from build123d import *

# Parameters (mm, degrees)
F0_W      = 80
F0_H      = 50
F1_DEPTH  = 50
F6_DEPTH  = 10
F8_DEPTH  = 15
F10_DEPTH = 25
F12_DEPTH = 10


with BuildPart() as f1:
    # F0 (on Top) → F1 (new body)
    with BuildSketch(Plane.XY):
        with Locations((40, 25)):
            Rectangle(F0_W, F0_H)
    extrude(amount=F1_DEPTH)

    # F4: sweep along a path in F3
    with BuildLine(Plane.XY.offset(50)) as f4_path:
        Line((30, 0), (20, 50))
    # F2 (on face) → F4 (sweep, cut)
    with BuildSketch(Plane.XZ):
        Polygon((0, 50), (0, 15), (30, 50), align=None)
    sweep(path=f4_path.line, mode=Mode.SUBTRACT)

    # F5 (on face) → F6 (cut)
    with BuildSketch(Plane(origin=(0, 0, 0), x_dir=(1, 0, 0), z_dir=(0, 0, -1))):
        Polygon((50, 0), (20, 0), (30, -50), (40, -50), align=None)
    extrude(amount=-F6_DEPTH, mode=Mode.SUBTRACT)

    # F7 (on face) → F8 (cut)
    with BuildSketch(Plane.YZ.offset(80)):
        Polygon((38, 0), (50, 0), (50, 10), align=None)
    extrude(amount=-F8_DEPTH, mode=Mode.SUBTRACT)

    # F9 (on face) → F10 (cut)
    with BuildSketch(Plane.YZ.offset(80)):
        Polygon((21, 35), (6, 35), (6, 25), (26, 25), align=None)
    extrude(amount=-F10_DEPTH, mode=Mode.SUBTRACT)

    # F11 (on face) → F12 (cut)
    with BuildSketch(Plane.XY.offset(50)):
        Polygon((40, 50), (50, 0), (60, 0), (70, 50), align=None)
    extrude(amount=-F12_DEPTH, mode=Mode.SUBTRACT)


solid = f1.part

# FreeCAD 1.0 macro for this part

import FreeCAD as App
import Part
import Sketcher


def add_polygon(sketch, points):
    """Adds a closed chain of lines whose ends are joined by coincident constraints."""
    first, n = sketch.GeometryCount, len(points)
    for a, b in zip(points, points[1:] + points[:1]):
        sketch.addGeometry(Part.LineSegment(App.Vector(*a, 0), App.Vector(*b, 0)), False)
    for i in range(n):
        sketch.addConstraint(Sketcher.Constraint("Coincident", first + i, 2, first + (i + 1) % n, 1))

doc = App.newDocument("Part")
body = doc.addObject("PartDesign::Body", "Body")

# Sketch on XY plane
sketch1 = doc.addObject("Sketcher::SketchObject", "Sketch")
body.addObject(sketch1)
sketch1.AttachmentSupport = (doc.XY_Plane, [""])
sketch1.MapMode = "FlatFace"
add_polygon(sketch1, [(0, 50), (0, 0), (80, 0), (80, 50)])  # lines 0-3
sketch1.addConstraint([
    Sketcher.Constraint("Vertical", 0),
    Sketcher.Constraint("Horizontal", 1),
    Sketcher.Constraint("Vertical", 2),
    Sketcher.Constraint("Horizontal", 3),
    Sketcher.Constraint("Coincident", 0, 2, -1, 1),
    Sketcher.Constraint("DistanceX", 1, 1, 1, 2, 80.0),
    Sketcher.Constraint("DistanceY", 0, 2, 0, 1, 50.0),
])
pad1 = doc.addObject("PartDesign::Pad", "Pad")
body.addObject(pad1)
pad1.Profile = sketch1
pad1.Length = 50

# Sketch on XZ plane
sketch2 = doc.addObject("Sketcher::SketchObject", "Sketch001")
body.addObject(sketch2)
sketch2.AttachmentSupport = (doc.XZ_Plane, [""])
sketch2.MapMode = "FlatFace"
add_polygon(sketch2, [(0, 50), (0, 15), (30, 50)])  # lines 0-2
sketch2.addConstraint([
    Sketcher.Constraint("Vertical", 0),
    Sketcher.Constraint("Horizontal", 2),
    Sketcher.Constraint("PointOnObject", 0, 2, -2),
    Sketcher.Constraint("DistanceX", 2, 2, 2, 1, 30.0),
    Sketcher.Constraint("DistanceY", 0, 2, 0, 1, 35.0),
    Sketcher.Constraint("DistanceY", -1, 1, 0, 2, 15.0),
])

# Sketch on an angled plane
sketch3 = doc.addObject("Sketcher::SketchObject", "Sketch002")
body.addObject(sketch3)
sketch3.Placement = App.Placement(App.Vector(28.846154, 5.769231, 0), App.Rotation(App.Vector(-0.196116135, 0.980580676, 0), App.Vector(0, 0, 1.000000001), App.Vector(0.980580676, 0.196116135, 0), "ZXY"))
sketch3.addGeometry(Part.LineSegment(App.Vector(-6, 50, 0), App.Vector(45, 50, 0)), False)
sketch3.addConstraint([
    Sketcher.Constraint("Horizontal", 0),
    Sketcher.Constraint("DistanceY", -1, 1, 0, 1, 50.0),
    Sketcher.Constraint("DistanceX", 0, 1, 0, 2, 50.990195),
    Sketcher.Constraint("DistanceX", -1, 1, 0, 2, 45.106711),
])
doc.recompute()

subtractivepipe = doc.addObject("PartDesign::SubtractivePipe", "SubtractivePipe")
body.addObject(subtractivepipe)
subtractivepipe.Profile = sketch2
subtractivepipe.Spine = (sketch3, ["Edge1"])

# Sketch on XY plane
sketch4 = doc.addObject("Sketcher::SketchObject", "Sketch003")
body.addObject(sketch4)
sketch4.AttachmentSupport = (doc.XY_Plane, [""])
sketch4.MapMode = "FlatFace"
add_polygon(sketch4, [(50, 0), (20, 0), (30, 50), (40, 50)])  # lines 0-3
sketch4.addConstraint([
    Sketcher.Constraint("Horizontal", 0),
    Sketcher.Constraint("Horizontal", 2),
    Sketcher.Constraint("PointOnObject", 0, 2, -1),
    Sketcher.Constraint("Equal", 1, 3),
    Sketcher.Constraint("DistanceX", 0, 2, 0, 1, 30.0),
    Sketcher.Constraint("DistanceX", 2, 1, 2, 2, 10.0),
    Sketcher.Constraint("DistanceX", -1, 1, 0, 2, 20.0),
    Sketcher.Constraint("DistanceY", -1, 1, 1, 2, 50.0),
])
pocket1 = doc.addObject("PartDesign::Pocket", "Pocket")
body.addObject(pocket1)
pocket1.Profile = sketch4
pocket1.Length = 10
pocket1.Reversed = True

# Sketch on YZ plane
sketch5 = doc.addObject("Sketcher::SketchObject", "Sketch004")
body.addObject(sketch5)
sketch5.AttachmentSupport = (doc.YZ_Plane, [""])
sketch5.MapMode = "FlatFace"
sketch5.AttachmentOffset = App.Placement(App.Vector(0, 0, 80), App.Rotation())
add_polygon(sketch5, [(38, 0), (50, 0), (50, 10)])  # lines 0-2
sketch5.addConstraint([
    Sketcher.Constraint("Horizontal", 0),
    Sketcher.Constraint("Vertical", 1),
    Sketcher.Constraint("PointOnObject", 0, 2, -1),
    Sketcher.Constraint("DistanceX", 0, 1, 0, 2, 12.0),
    Sketcher.Constraint("DistanceY", 1, 1, 1, 2, 10.0),
    Sketcher.Constraint("DistanceX", -1, 1, 0, 2, 50.0),
])
pocket2 = doc.addObject("PartDesign::Pocket", "Pocket001")
body.addObject(pocket2)
pocket2.Profile = sketch5
pocket2.Length = 15

# Sketch on YZ plane
sketch6 = doc.addObject("Sketcher::SketchObject", "Sketch005")
body.addObject(sketch6)
sketch6.AttachmentSupport = (doc.YZ_Plane, [""])
sketch6.MapMode = "FlatFace"
sketch6.AttachmentOffset = App.Placement(App.Vector(0, 0, 80), App.Rotation())
add_polygon(sketch6, [(21, 35), (6, 35), (6, 25), (26, 25)])  # lines 0-3
sketch6.addConstraint([
    Sketcher.Constraint("Horizontal", 0),
    Sketcher.Constraint("Vertical", 1),
    Sketcher.Constraint("Horizontal", 2),
    Sketcher.Constraint("DistanceX", 0, 2, 0, 1, 15.0),
    Sketcher.Constraint("DistanceX", 2, 1, 2, 2, 20.0),
    Sketcher.Constraint("DistanceY", 1, 2, 1, 1, 10.0),
    Sketcher.Constraint("DistanceX", -1, 1, 0, 2, 6.0),
    Sketcher.Constraint("DistanceY", -1, 1, 0, 2, 35.0),
])
pocket3 = doc.addObject("PartDesign::Pocket", "Pocket002")
body.addObject(pocket3)
pocket3.Profile = sketch6
pocket3.Length = 25

# Sketch on XY plane
sketch7 = doc.addObject("Sketcher::SketchObject", "Sketch006")
body.addObject(sketch7)
sketch7.AttachmentSupport = (doc.XY_Plane, [""])
sketch7.MapMode = "FlatFace"
sketch7.AttachmentOffset = App.Placement(App.Vector(0, 0, 50), App.Rotation())
add_polygon(sketch7, [(40, 50), (50, 0), (60, 0), (70, 50)])  # lines 0-3
sketch7.addConstraint([
    Sketcher.Constraint("Horizontal", 1),
    Sketcher.Constraint("Horizontal", 3),
    Sketcher.Constraint("PointOnObject", 0, 2, -1),
    Sketcher.Constraint("Equal", 0, 2),
    Sketcher.Constraint("DistanceX", 1, 1, 1, 2, 10.0),
    Sketcher.Constraint("DistanceX", 3, 2, 3, 1, 30.0),
    Sketcher.Constraint("DistanceX", -1, 1, 0, 2, 50.0),
    Sketcher.Constraint("DistanceY", -1, 1, 2, 2, 50.0),
])
pocket4 = doc.addObject("PartDesign::Pocket", "Pocket003")
body.addObject(pocket4)
pocket4.Profile = sketch7
pocket4.Length = 10

doc.recompute()
